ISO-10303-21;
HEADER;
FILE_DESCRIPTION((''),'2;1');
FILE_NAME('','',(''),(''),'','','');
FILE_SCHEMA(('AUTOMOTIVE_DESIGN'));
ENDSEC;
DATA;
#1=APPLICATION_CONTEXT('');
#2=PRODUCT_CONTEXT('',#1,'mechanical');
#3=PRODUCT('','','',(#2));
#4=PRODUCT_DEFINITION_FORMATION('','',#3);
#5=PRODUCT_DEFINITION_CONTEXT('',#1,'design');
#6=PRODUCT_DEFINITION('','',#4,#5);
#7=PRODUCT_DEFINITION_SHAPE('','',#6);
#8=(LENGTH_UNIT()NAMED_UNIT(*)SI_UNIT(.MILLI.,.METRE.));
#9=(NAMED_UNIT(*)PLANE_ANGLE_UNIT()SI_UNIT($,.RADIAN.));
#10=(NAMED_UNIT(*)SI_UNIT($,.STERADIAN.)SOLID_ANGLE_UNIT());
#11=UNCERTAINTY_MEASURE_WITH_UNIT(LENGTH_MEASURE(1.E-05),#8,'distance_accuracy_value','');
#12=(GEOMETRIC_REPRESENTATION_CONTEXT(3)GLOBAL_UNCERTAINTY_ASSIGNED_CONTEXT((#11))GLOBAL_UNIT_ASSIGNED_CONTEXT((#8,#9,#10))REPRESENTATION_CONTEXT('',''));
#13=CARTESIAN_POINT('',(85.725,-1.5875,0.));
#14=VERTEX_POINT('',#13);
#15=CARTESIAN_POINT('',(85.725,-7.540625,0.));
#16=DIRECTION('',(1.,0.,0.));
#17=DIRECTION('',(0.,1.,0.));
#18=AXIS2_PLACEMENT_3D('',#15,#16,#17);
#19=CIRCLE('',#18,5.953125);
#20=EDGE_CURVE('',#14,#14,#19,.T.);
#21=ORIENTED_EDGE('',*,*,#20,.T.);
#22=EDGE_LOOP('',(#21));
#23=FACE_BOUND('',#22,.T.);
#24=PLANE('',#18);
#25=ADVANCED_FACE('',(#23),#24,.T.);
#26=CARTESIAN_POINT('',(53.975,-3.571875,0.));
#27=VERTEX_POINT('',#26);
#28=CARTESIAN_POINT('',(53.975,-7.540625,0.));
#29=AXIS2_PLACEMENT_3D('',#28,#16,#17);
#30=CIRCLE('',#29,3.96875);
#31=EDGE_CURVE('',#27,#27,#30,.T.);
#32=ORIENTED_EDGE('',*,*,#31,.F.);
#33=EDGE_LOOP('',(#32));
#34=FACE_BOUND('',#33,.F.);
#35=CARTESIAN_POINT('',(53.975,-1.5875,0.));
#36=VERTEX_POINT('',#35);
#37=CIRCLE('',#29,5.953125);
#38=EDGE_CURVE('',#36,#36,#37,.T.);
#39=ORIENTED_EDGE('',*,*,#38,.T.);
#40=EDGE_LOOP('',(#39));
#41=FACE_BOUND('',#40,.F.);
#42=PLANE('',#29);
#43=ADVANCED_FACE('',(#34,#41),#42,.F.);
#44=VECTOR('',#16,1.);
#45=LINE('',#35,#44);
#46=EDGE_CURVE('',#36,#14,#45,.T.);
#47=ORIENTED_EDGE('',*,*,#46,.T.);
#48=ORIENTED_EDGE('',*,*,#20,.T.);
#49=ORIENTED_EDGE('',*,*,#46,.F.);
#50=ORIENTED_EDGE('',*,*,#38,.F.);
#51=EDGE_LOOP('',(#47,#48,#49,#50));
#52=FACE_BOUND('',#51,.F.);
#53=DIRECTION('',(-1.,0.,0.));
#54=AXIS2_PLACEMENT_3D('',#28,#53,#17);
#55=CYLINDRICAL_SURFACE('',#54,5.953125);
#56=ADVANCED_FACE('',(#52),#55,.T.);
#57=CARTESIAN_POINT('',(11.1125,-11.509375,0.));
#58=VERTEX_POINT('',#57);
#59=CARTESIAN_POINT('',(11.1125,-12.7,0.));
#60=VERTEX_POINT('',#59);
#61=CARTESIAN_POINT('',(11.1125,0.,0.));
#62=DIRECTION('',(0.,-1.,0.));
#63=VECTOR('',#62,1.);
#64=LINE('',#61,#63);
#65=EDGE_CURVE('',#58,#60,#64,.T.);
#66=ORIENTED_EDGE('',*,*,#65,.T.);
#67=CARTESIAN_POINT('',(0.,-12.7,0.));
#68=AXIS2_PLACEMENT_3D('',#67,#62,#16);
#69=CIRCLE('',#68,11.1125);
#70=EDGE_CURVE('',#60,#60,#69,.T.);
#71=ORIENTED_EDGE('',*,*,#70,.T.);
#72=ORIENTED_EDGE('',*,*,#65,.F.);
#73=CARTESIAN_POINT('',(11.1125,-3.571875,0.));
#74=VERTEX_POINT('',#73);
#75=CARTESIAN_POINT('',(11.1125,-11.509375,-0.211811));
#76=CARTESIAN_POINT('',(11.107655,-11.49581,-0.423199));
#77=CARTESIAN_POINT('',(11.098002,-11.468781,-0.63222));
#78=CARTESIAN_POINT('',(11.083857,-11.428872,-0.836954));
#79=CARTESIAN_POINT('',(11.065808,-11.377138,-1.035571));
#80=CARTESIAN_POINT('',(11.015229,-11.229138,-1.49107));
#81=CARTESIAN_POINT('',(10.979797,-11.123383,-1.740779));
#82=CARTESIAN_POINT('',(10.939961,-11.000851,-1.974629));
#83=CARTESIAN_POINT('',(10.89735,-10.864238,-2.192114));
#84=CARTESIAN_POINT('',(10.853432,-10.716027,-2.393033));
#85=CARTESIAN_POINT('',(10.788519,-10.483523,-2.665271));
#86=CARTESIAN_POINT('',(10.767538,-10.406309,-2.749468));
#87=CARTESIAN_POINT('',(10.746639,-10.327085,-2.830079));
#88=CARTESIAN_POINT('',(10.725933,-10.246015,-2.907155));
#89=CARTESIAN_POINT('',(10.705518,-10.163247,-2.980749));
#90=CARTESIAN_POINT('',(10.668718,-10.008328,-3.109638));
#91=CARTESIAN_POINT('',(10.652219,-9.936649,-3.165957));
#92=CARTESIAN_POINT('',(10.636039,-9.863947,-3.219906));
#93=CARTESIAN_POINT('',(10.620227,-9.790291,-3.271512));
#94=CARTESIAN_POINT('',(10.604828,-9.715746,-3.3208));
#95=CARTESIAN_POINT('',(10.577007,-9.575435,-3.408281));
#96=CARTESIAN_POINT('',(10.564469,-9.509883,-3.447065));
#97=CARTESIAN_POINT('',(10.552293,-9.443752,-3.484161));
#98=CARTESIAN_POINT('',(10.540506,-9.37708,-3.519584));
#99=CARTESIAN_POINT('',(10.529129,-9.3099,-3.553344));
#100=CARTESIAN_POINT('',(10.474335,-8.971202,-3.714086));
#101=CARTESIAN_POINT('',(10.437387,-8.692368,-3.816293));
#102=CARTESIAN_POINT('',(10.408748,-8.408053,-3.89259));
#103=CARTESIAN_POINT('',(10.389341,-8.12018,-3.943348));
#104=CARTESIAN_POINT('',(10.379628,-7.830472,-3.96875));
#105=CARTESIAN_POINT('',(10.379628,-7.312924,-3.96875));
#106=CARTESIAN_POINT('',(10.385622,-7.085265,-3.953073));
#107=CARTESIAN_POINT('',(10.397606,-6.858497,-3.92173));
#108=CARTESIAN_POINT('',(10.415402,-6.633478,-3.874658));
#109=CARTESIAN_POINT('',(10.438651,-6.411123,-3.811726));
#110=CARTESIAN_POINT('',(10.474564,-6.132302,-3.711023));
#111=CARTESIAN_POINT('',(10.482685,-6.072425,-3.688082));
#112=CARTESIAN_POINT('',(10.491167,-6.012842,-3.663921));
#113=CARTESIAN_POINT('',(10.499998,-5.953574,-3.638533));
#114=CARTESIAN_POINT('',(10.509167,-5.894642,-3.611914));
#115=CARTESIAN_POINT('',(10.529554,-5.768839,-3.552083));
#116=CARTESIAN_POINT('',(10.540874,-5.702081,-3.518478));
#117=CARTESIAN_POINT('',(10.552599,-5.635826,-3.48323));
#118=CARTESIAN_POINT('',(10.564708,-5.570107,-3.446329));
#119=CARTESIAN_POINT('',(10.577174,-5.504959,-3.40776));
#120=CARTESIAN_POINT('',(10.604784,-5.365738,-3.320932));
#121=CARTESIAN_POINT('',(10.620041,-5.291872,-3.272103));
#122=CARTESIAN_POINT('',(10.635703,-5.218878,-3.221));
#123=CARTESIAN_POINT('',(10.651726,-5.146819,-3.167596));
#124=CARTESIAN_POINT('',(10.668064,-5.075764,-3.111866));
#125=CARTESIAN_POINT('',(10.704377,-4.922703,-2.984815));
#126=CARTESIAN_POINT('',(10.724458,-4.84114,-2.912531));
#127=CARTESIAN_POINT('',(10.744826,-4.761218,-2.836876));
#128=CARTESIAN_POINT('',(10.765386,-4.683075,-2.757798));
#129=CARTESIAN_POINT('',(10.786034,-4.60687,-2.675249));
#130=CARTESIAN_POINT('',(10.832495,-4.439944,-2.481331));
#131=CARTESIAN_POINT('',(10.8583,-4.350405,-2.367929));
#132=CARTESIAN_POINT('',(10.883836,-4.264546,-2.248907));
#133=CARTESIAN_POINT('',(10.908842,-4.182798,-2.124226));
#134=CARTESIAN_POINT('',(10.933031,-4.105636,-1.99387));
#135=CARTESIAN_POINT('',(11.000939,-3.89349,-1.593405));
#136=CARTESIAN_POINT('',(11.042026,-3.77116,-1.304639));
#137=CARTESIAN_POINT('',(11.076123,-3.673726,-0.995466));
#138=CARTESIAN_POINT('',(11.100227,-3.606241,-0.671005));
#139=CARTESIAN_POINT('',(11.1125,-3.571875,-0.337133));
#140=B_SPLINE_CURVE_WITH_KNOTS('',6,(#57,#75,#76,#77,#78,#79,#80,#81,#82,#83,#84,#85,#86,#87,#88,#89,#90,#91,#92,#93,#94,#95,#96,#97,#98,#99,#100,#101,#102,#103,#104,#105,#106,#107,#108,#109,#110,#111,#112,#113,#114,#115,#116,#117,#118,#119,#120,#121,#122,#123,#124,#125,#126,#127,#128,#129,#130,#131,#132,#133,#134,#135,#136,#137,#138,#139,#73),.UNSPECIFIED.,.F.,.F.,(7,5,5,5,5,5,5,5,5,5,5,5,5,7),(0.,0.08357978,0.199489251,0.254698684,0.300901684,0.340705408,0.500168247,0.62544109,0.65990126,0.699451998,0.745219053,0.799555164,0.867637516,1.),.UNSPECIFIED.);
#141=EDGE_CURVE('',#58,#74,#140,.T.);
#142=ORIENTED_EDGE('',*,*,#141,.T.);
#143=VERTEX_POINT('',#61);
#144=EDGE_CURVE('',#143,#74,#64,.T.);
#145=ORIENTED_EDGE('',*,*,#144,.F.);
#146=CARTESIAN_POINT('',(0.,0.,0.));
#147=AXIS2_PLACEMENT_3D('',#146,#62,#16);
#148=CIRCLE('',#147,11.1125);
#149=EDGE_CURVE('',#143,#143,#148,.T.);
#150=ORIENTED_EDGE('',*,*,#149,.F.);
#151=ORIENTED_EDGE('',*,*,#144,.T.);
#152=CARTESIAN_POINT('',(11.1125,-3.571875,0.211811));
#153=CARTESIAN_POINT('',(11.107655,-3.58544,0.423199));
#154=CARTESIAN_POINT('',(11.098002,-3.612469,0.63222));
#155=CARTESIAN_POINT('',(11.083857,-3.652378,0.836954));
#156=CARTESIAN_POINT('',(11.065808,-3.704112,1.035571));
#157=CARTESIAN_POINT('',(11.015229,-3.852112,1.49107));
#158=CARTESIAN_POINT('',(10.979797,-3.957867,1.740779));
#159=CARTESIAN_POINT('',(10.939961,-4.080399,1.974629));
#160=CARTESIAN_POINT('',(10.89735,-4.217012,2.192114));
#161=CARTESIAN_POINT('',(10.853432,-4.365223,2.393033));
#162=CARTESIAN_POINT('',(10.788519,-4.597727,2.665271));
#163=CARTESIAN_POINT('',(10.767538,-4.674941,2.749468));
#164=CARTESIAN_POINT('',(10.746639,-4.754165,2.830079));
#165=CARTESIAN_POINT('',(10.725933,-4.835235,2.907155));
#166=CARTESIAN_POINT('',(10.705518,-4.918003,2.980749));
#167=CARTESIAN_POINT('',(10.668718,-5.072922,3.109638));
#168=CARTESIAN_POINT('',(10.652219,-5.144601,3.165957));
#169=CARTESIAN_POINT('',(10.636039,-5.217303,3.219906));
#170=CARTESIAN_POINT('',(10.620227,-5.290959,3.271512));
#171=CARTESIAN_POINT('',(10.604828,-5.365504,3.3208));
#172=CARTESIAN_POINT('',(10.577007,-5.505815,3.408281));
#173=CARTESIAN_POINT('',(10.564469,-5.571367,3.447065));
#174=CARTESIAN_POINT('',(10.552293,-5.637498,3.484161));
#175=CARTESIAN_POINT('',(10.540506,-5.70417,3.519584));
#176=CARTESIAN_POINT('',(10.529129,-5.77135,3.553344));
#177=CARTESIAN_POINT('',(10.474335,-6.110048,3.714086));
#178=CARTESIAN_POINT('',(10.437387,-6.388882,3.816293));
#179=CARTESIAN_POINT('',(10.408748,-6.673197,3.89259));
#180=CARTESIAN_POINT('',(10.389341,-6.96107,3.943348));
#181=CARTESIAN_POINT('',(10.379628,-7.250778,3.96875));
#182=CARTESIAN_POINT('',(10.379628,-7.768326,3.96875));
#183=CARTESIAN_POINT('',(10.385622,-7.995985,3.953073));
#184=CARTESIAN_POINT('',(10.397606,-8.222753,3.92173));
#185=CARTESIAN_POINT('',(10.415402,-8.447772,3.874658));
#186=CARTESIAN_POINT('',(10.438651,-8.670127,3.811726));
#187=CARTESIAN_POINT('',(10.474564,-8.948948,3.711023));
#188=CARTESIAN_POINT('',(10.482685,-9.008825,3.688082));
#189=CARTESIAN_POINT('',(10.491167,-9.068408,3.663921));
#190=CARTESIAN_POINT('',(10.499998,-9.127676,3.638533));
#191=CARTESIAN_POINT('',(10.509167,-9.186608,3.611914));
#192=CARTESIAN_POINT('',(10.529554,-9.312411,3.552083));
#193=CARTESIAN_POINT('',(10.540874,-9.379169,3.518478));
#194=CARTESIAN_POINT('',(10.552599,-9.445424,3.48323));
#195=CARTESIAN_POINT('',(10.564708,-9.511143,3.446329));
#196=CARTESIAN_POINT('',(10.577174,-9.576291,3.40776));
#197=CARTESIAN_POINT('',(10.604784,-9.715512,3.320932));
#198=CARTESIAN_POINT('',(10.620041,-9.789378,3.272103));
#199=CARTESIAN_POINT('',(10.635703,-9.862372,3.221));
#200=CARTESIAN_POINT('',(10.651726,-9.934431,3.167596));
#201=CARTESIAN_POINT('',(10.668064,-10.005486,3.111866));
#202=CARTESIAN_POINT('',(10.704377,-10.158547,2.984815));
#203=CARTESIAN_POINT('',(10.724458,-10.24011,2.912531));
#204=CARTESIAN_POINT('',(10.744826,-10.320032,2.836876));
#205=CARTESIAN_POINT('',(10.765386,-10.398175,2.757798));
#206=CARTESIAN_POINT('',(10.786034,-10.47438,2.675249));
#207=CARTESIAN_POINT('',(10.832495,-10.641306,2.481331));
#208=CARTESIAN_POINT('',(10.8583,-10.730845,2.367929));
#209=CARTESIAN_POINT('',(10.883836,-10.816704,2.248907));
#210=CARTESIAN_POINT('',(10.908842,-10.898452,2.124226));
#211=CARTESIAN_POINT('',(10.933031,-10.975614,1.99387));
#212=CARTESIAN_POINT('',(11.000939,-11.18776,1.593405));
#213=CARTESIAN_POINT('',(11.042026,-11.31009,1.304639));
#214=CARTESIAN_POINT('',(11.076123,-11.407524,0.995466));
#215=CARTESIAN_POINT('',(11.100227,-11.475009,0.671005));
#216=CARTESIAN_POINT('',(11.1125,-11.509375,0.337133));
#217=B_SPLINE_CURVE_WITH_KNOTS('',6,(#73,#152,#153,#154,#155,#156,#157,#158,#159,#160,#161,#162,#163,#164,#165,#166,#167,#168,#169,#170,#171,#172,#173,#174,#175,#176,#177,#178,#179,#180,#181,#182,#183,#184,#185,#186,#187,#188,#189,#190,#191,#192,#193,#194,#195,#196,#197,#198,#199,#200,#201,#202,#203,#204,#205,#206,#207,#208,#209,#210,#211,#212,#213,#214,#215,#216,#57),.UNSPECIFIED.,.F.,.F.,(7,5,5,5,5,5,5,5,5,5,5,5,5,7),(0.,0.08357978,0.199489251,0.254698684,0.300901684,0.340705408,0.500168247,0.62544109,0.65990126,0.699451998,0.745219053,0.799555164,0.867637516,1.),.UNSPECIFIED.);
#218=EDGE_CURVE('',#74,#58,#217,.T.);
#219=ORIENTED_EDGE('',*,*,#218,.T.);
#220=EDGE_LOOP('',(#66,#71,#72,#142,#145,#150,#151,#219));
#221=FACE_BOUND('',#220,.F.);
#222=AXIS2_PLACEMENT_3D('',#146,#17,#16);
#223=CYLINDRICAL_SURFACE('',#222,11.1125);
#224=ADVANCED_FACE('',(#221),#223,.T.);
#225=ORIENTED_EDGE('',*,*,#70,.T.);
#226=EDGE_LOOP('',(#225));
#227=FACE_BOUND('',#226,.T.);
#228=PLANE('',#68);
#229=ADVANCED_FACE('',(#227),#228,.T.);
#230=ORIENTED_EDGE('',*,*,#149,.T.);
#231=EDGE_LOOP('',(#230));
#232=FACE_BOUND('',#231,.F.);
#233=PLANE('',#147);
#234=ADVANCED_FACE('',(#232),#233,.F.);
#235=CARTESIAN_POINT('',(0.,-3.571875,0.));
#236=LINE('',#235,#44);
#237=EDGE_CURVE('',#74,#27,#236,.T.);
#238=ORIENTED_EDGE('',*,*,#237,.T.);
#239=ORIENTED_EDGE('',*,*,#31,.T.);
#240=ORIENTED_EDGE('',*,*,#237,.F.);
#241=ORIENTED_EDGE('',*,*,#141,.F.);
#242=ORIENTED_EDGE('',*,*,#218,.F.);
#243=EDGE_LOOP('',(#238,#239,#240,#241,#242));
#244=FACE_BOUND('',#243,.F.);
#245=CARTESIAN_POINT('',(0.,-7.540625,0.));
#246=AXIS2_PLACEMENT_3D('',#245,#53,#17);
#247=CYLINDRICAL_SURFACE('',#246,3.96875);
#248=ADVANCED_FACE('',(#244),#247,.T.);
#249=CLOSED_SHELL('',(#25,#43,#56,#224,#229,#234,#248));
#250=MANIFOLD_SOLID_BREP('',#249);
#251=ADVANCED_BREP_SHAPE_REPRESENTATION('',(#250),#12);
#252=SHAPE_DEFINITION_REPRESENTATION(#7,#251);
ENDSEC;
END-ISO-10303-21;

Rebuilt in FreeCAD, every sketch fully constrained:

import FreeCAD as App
import Part
import Sketcher
from FreeCAD import Vector
Q = App.Units.Quantity

doc = App.newDocument("Part")
body = doc.addObject("PartDesign::Body", "Body")

sketch1 = doc.addObject("Sketcher::SketchObject", "Sketch")
body.addObject(sketch1)
sketch1.AttachmentSupport = (doc.XZ_Plane, [""])
sketch1.MapMode = "FlatFace"
sketch1.addGeometry(Part.Circle(Vector(0, 0, 0), Vector(0, 0, 1), 11.1125), False)
sketch1.addConstraint(Sketcher.Constraint("Coincident", 0, 3, -1, 1))
sketch1.addConstraint(Sketcher.Constraint("Diameter", 0, Q("0.875 in")))
pad1 = doc.addObject("PartDesign::Pad", "Pad")
body.addObject(pad1)
pad1.Profile = sketch1
pad1.Length = Q("0.5 in")

sketch2 = doc.addObject("Sketcher::SketchObject", "Sketch001")
body.addObject(sketch2)
sketch2.AttachmentSupport = (doc.YZ_Plane, [""])
sketch2.MapMode = "FlatFace"
sketch2.addGeometry(Part.Circle(Vector(-7.540625, 0, 0), Vector(0, 0, 1), 3.96875), False)
sketch2.addConstraint(Sketcher.Constraint("PointOnObject", 0, 3, -1))
sketch2.addConstraint(Sketcher.Constraint("Diameter", 0, Q("0.3125 in")))
sketch2.addConstraint(Sketcher.Constraint("DistanceX", 0, 3, -1, 1, Q("0.296875 in")))
pad2 = doc.addObject("PartDesign::Pad", "Pad001")
body.addObject(pad2)
pad2.Profile = sketch2
pad2.Length = Q("2.125 in")

sketch3 = doc.addObject("Sketcher::SketchObject", "Sketch002")
body.addObject(sketch3)
sketch3.AttachmentSupport = (doc.YZ_Plane, [""])
sketch3.MapMode = "FlatFace"
sketch3.AttachmentOffset = App.Placement(Vector(0, 0, 2.125 * 25.4), App.Rotation())
sketch3.addGeometry(Part.Circle(Vector(-7.540625, 0, 0), Vector(0, 0, 1), 5.953125), False)
sketch3.addConstraint(Sketcher.Constraint("PointOnObject", 0, 3, -1))
sketch3.addConstraint(Sketcher.Constraint("Diameter", 0, Q("0.46875 in")))
sketch3.addConstraint(Sketcher.Constraint("DistanceX", 0, 3, -1, 1, Q("0.296875 in")))
pad3 = doc.addObject("PartDesign::Pad", "Pad002")
body.addObject(pad3)
pad3.Profile = sketch3
pad3.Length = Q("1.25 in")

doc.recompute()
